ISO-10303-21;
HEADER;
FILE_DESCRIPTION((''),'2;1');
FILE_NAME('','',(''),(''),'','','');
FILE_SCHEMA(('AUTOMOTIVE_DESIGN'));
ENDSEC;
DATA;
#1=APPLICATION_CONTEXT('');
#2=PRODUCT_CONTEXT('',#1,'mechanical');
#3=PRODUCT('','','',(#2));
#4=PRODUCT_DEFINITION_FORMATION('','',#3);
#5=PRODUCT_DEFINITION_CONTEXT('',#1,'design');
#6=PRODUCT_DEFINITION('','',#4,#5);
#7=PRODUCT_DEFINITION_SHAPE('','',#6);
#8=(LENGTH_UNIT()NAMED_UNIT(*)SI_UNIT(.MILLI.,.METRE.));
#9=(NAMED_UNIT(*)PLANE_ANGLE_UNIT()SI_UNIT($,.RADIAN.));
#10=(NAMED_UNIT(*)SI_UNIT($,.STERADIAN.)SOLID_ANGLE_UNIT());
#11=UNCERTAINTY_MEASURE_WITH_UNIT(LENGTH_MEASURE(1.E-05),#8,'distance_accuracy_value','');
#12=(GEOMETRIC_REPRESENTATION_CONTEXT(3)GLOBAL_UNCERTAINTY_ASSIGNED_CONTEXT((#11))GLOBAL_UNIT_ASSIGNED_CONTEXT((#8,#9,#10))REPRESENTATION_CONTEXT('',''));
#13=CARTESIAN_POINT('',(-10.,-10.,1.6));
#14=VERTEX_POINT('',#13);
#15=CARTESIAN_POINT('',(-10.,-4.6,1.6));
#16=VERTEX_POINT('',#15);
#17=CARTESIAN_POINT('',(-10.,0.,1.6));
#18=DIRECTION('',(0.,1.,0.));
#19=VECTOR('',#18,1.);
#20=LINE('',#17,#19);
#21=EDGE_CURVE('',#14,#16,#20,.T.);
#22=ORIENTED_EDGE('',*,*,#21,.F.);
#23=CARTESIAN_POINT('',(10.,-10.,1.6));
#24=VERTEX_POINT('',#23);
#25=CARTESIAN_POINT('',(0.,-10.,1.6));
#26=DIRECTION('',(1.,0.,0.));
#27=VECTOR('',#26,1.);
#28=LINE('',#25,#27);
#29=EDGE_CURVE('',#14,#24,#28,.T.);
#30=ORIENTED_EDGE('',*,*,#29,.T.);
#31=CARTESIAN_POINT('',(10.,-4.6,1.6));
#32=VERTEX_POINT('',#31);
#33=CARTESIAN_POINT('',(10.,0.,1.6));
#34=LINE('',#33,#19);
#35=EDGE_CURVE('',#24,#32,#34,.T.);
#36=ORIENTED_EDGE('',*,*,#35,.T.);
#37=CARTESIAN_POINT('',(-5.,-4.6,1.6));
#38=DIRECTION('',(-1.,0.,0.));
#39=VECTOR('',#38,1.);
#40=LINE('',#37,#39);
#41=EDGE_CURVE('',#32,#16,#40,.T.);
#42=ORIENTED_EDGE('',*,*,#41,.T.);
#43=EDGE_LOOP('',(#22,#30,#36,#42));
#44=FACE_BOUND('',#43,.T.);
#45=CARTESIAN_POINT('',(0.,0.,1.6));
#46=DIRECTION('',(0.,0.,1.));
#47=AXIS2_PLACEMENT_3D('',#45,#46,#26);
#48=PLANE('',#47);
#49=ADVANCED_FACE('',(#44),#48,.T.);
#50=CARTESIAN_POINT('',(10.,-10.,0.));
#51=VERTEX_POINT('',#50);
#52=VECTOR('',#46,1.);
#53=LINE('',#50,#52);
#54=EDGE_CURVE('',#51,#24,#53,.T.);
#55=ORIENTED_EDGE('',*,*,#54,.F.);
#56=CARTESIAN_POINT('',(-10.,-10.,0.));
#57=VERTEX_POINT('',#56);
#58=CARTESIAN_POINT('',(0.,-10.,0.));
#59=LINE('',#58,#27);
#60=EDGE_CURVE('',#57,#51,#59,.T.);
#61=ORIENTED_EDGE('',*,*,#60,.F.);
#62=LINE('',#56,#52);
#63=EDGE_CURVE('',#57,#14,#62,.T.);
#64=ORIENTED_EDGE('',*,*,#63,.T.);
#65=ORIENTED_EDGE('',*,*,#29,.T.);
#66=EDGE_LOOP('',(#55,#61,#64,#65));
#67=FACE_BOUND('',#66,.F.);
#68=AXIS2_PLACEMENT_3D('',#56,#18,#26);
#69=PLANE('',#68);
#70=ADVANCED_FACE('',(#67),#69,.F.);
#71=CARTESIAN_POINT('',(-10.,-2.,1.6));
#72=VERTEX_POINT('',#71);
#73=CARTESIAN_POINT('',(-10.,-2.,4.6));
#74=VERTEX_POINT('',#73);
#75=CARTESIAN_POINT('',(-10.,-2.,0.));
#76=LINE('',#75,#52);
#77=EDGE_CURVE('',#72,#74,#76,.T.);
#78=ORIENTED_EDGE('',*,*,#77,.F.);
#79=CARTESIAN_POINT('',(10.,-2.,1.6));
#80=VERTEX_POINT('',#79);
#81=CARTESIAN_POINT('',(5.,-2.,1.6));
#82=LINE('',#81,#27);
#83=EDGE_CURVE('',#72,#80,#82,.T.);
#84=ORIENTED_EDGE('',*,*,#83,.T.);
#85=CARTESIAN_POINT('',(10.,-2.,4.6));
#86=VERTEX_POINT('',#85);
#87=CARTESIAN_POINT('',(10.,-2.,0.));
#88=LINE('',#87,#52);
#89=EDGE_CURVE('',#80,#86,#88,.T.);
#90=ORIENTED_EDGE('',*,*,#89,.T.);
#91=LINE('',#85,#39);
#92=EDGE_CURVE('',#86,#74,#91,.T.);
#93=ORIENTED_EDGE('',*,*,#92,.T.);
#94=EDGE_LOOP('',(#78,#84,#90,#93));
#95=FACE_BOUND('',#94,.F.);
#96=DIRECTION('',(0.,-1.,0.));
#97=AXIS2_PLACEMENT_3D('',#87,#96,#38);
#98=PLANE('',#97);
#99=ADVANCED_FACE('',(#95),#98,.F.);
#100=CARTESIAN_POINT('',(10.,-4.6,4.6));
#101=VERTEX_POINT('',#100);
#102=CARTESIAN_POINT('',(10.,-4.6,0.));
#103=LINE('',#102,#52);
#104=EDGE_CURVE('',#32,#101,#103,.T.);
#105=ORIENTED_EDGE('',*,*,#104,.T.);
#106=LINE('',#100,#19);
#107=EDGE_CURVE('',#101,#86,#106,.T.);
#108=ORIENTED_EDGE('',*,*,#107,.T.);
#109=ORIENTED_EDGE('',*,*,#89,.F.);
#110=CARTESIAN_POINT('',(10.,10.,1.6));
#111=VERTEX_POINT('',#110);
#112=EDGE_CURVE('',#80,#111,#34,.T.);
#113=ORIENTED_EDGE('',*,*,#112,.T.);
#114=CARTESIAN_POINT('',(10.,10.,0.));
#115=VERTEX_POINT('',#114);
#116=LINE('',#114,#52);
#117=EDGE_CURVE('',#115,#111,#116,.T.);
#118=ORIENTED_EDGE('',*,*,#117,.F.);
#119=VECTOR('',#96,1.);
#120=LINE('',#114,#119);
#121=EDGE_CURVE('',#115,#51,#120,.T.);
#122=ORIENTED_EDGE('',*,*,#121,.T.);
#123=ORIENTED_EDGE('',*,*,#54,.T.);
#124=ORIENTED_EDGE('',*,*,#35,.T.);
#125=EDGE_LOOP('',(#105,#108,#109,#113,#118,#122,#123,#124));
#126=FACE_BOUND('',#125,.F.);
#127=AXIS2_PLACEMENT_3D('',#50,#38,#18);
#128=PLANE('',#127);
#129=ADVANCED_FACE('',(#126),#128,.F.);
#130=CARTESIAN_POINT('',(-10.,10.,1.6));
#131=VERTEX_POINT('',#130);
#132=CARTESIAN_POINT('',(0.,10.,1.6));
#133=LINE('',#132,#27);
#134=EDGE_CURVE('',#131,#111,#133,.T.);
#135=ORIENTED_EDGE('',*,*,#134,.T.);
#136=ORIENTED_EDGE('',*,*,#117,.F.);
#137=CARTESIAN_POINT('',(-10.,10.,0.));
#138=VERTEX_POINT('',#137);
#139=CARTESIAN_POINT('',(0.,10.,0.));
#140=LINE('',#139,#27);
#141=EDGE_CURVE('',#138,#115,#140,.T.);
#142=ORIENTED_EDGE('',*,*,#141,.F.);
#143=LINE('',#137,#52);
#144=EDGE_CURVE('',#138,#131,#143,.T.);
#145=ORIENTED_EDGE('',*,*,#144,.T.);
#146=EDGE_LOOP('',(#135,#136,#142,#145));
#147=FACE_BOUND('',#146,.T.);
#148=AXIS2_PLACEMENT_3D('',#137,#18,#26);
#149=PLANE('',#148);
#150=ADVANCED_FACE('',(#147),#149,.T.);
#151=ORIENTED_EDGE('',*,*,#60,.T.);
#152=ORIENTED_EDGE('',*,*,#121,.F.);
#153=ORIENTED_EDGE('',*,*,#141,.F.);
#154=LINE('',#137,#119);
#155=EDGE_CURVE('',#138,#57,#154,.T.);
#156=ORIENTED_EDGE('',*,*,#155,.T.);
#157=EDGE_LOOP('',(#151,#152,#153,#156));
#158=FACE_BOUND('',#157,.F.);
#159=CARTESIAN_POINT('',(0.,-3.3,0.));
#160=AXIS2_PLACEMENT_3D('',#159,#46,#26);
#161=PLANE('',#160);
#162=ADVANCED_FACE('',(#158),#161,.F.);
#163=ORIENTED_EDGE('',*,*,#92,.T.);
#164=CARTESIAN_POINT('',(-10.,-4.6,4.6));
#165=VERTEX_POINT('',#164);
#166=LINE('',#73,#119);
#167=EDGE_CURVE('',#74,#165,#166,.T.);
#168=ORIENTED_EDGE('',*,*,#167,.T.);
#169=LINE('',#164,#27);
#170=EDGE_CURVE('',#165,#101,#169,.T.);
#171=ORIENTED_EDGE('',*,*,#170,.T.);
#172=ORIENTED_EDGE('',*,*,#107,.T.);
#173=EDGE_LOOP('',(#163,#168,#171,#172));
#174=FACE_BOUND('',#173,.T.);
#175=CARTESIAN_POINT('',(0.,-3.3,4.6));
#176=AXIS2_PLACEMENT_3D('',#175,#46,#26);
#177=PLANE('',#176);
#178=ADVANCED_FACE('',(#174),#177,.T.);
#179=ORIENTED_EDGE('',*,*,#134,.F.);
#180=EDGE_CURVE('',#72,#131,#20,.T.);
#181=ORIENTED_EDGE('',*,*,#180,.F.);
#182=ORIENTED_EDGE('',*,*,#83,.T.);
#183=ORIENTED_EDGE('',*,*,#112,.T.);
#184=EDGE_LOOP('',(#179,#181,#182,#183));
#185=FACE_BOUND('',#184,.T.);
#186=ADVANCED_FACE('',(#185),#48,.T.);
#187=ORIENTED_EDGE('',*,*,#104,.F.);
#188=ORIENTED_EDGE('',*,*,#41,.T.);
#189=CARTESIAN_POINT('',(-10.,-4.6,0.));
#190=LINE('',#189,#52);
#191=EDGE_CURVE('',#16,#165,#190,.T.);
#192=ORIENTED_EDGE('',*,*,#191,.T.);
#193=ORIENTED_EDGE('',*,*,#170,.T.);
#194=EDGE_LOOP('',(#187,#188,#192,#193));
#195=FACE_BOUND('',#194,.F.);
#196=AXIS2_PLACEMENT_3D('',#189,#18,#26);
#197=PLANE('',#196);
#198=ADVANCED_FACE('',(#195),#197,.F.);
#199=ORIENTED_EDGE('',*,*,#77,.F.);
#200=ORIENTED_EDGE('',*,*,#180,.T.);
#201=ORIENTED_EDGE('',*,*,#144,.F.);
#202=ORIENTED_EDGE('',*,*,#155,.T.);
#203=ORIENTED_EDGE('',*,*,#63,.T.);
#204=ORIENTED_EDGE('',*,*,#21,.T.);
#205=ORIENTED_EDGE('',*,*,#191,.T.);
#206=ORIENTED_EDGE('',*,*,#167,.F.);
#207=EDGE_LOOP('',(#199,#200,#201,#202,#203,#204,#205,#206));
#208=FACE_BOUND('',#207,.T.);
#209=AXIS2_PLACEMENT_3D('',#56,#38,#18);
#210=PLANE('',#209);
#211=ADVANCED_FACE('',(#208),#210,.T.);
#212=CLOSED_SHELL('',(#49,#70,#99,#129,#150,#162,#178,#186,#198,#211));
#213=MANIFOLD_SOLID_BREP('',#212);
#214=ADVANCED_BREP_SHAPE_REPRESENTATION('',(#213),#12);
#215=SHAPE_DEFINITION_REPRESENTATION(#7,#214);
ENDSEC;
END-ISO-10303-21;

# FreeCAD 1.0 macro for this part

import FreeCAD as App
import Part
import Sketcher
Q = App.Units.Quantity


def add_polygon(sketch, points):
    """Adds a closed chain of lines whose ends are joined by coincident constraints."""
    first, n = sketch.GeometryCount, len(points)
    for a, b in zip(points, points[1:] + points[:1]):
        sketch.addGeometry(Part.LineSegment(App.Vector(*a, 0), App.Vector(*b, 0)), False)
    for i in range(n):
        sketch.addConstraint(Sketcher.Constraint("Coincident", first + i, 2, first + (i + 1) % n, 1))

doc = App.newDocument("Part")
body = doc.addObject("PartDesign::Body", "Body")

# Sketch on XY plane
sketch1 = body.newObject("Sketcher::SketchObject", "Sketch")
sketch1.AttachmentSupport = (doc.getObject("XY_Plane"), [""])
sketch1.MapMode = "FlatFace"
add_polygon(sketch1, [(-10, 10), (-10, -10), (10, -10), (10, 10)])  # lines 0-3
sketch1.addConstraint([
    Sketcher.Constraint("Vertical", 0),
    Sketcher.Constraint("Horizontal", 1),
    Sketcher.Constraint("Vertical", 2),
    Sketcher.Constraint("Horizontal", 3),
    Sketcher.Constraint("Symmetric", 0, 2, 2, 2, -1, 1),
    Sketcher.Constraint("Equal", 3, 0),
    Sketcher.Constraint("DistanceX", 1, 1, 1, 2, Q("20 mm")),
])
pad1 = body.newObject("PartDesign::Pad", "Pad")
pad1.Profile = sketch1
pad1.Length = 1.6

# Sketch on XY plane
sketch2 = body.newObject("Sketcher::SketchObject", "Sketch001")
sketch2.AttachmentSupport = (doc.getObject("XY_Plane"), [""])
sketch2.MapMode = "FlatFace"
add_polygon(sketch2, [(-10, -4.6), (10, -4.6), (10, -2), (-10, -2)])  # lines 0-3
sketch2.addConstraint([
    Sketcher.Constraint("Horizontal", 0),
    Sketcher.Constraint("Vertical", 1),
    Sketcher.Constraint("Horizontal", 2),
    Sketcher.Constraint("Vertical", 3),
    Sketcher.Constraint("DistanceX", 0, 1, 0, 2, Q("20 mm")),
    Sketcher.Constraint("DistanceY", 1, 1, 1, 2, Q("2.6 mm")),
    Sketcher.Constraint("DistanceX", -1, 1, 0, 2, Q("10 mm")),
    Sketcher.Constraint("DistanceY", 1, 2, -1, 1, Q("2 mm")),
])
pad2 = body.newObject("PartDesign::Pad", "Pad001")
pad2.Profile = sketch2
pad2.Length = 4.6

doc.recompute()
